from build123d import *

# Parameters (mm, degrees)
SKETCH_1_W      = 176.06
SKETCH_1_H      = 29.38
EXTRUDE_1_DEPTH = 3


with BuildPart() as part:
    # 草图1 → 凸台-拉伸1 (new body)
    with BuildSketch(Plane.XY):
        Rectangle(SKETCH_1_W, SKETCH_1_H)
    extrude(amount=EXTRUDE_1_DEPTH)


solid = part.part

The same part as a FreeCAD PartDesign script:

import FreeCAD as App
import Part
import Sketcher

V = App.Vector

doc = App.newDocument("Part")
body = doc.addObject("PartDesign::Body", "Body")

sketch1 = body.newObject("Sketcher::SketchObject", "Sketch")
sketch1.AttachmentSupport = (doc.getObject("XY_Plane"), [""])
sketch1.MapMode = "FlatFace"
sketch1.addGeometry(Part.LineSegment(V(-88.03, 14.69, 0), V(-88.03, -14.69, 0)), False)
sketch1.addGeometry(Part.LineSegment(V(-88.03, -14.69, 0), V(88.03, -14.69, 0)), False)
sketch1.addGeometry(Part.LineSegment(V(88.03, -14.69, 0), V(88.03, 14.69, 0)), False)
sketch1.addGeometry(Part.LineSegment(V(88.03, 14.69, 0), V(-88.03, 14.69, 0)), False)
sketch1.addConstraint(Sketcher.Constraint("Coincident", 0, 2, 1, 1))
sketch1.addConstraint(Sketcher.Constraint("Coincident", 1, 2, 2, 1))
sketch1.addConstraint(Sketcher.Constraint("Coincident", 2, 2, 3, 1))
sketch1.addConstraint(Sketcher.Constraint("Coincident", 3, 2, 0, 1))
sketch1.addConstraint(Sketcher.Constraint("Vertical", 0))
sketch1.addConstraint(Sketcher.Constraint("Horizontal", 1))
sketch1.addConstraint(Sketcher.Constraint("Vertical", 2))
sketch1.addConstraint(Sketcher.Constraint("Horizontal", 3))
sketch1.addConstraint(Sketcher.Constraint("Symmetric", 0, 2, 2, 2, -1, 1))
sketch1.addConstraint(Sketcher.Constraint("DistanceX", 1, 1, 1, 2, 176.06))
sketch1.addConstraint(Sketcher.Constraint("DistanceY", 0, 2, 0, 1, 29.38))
pad1 = body.newObject("PartDesign::Pad", "Pad")
pad1.Profile = sketch1
pad1.Length = 3

doc.recompute()
